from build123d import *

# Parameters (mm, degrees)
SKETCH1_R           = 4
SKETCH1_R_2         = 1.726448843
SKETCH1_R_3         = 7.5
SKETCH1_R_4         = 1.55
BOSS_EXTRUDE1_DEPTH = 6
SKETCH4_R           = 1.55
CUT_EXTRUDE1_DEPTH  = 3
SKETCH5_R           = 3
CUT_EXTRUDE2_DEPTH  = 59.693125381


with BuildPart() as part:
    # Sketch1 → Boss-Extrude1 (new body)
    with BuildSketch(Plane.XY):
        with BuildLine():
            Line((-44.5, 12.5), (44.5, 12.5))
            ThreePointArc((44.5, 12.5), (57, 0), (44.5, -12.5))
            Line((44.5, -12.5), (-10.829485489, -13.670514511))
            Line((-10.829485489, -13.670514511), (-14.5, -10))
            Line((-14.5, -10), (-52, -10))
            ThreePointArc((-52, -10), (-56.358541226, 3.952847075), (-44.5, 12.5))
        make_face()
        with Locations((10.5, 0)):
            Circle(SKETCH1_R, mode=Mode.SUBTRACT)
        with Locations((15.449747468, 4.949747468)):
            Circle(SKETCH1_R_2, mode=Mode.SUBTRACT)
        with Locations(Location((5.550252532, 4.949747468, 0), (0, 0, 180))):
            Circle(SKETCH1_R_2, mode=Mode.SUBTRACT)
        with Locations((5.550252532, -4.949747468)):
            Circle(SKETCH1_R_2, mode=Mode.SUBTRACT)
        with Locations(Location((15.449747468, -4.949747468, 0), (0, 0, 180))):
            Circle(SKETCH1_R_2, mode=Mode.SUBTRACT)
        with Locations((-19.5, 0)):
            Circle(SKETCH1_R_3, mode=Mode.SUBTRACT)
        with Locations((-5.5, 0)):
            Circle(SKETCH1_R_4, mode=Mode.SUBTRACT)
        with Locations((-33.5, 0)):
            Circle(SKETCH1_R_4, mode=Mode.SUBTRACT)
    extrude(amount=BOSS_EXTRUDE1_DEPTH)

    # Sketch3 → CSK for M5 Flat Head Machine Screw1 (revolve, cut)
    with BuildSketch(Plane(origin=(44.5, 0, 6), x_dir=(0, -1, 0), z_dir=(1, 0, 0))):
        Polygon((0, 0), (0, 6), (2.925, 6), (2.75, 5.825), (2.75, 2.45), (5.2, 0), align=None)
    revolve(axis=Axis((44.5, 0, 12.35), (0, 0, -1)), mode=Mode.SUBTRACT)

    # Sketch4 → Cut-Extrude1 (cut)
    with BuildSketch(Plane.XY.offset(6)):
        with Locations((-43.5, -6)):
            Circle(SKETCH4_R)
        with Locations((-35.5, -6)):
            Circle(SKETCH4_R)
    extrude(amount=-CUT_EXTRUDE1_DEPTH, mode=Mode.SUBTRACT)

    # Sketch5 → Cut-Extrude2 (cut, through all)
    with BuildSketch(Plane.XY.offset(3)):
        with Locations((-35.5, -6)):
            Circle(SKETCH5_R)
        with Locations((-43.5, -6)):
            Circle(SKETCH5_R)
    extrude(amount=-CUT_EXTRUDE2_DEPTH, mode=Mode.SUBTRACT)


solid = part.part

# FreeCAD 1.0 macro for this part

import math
import FreeCAD as App
import Part
import Sketcher
Q = App.Units.Quantity

doc = App.newDocument("Part")
body = doc.addObject("PartDesign::Body", "Body")

# Sketch on XY plane
sketch1 = body.newObject("Sketcher::SketchObject", "Sketch")
sketch1.AttachmentSupport = (doc.getObject("XY_Plane"), [""])
sketch1.MapMode = "FlatFace"
sketch1.addGeometry([
    Part.LineSegment(App.Vector(44.5, 12.5, 0), App.Vector(-44.5, 12.5, 0)),  # 0
    Part.ArcOfCircle(Part.Circle(App.Vector(-44.5, 0, 0), App.Vector(0, 0, 1), 12.5), math.radians(90), math.radians(233)),  # 1
    Part.LineSegment(App.Vector(-52, -10, 0), App.Vector(-14.5, -10, 0)),  # 2
    Part.LineSegment(App.Vector(-14.5, -10, 0), App.Vector(-10.8, -13.7, 0)),  # 3
    Part.LineSegment(App.Vector(-10.8, -13.7, 0), App.Vector(44.5, -12.5, 0)),  # 4
    Part.ArcOfCircle(Part.Circle(App.Vector(44.5, 0, 0), App.Vector(0, 0, 1), 12.5), math.radians(-90), math.radians(90)),  # 5
    Part.Circle(App.Vector(15.4, -4.9, 0), App.Vector(0, 0, 1), 1.7),  # 6
    Part.Circle(App.Vector(5.6, -4.9, 0), App.Vector(0, 0, 1), 1.7),  # 7
    Part.Circle(App.Vector(10.5, 0, 0), App.Vector(0, 0, 1), 4),  # 8
    Part.Circle(App.Vector(-5.5, 0, 0), App.Vector(0, 0, 1), 1.6),  # 9
    Part.Circle(App.Vector(15.4, 4.9, 0), App.Vector(0, 0, 1), 1.7),  # 10
    Part.Circle(App.Vector(5.6, 4.9, 0), App.Vector(0, 0, 1), 1.7),  # 11
    Part.Circle(App.Vector(-19.5, 0, 0), App.Vector(0, 0, 1), 7.5),  # 12
    Part.Circle(App.Vector(-33.5, 0, 0), App.Vector(0, 0, 1), 1.6),  # 13
], False)
sketch1.addConstraint([
    Sketcher.Constraint("Tangent", 0, 2, 1, 1),
    Sketcher.Constraint("Coincident", 1, 2, 2, 1),
    Sketcher.Constraint("Coincident", 2, 2, 3, 1),
    Sketcher.Constraint("Coincident", 3, 2, 4, 1),
    Sketcher.Constraint("Coincident", 4, 2, 5, 1),
    Sketcher.Constraint("Tangent", 5, 2, 0, 1),
    Sketcher.Constraint("Horizontal", 0),
    Sketcher.Constraint("Horizontal", 2),
    Sketcher.Constraint("Equal", 1, 5),
    Sketcher.Constraint("Equal", 6, 7),
    Sketcher.Constraint("Equal", 7, 10),
    Sketcher.Constraint("Equal", 10, 11),
    Sketcher.Constraint("Equal", 9, 13),
    Sketcher.Constraint("Symmetric", 1, 3, 5, 3, -1, 1),
    Sketcher.Constraint("Symmetric", 6, 3, 10, 3, -1),
    Sketcher.Constraint("Symmetric", 7, 3, 11, 3, -1),
    Sketcher.Constraint("PointOnObject", 8, 3, -1),
    Sketcher.Constraint("PointOnObject", 9, 3, -1),
    Sketcher.Constraint("PointOnObject", 12, 3, -1),
    Sketcher.Constraint("PointOnObject", 13, 3, -1),
    Sketcher.Constraint("Horizontal", 6, 3, 7, 3),
    Sketcher.Constraint("Vertical", 5, 3, 4, 2),
    Sketcher.Constraint("Diameter", 8, Q("8 mm")),
    Sketcher.Constraint("Diameter", 12, Q("15 mm")),
    Sketcher.Constraint("Diameter", 9, Q("3.1 mm")),
    Sketcher.Constraint("Radius", 1, Q("12.5 mm")),
    Sketcher.Constraint("DistanceX", 0, 2, 0, 1, Q("89 mm")),
    Sketcher.Constraint("Angle", 3, Q("-45 deg")),
    Sketcher.Constraint("DistanceX", 2, 1, 2, 2, Q("37.5 mm")),
    Sketcher.Constraint("DistanceX", 1, 2, -1, 1, Q("52 mm")),
    Sketcher.Constraint("DistanceX", 8, 3, 5, 3, Q("34 mm")),
    Sketcher.Constraint("DistanceX", 9, 3, 8, 3, Q("16 mm")),
    Sketcher.Constraint("DistanceX", 12, 3, 9, 3, Q("14 mm")),
    Sketcher.Constraint("DistanceX", 1, 3, 13, 3, Q("11 mm")),
    Sketcher.Constraint("Diameter", 6, Q("3.452898 mm")),
    Sketcher.Constraint("Distance", 3, Q("5.190891 mm")),
    Sketcher.Constraint("DistanceX", 3, 2, 7, 3, Q("16.379738 mm")),
    Sketcher.Constraint("DistanceY", 3, 2, 11, 3, Q("18.620262 mm")),
    Sketcher.Constraint("DistanceX", -1, 1, 6, 3, Q("15.449747 mm")),
])
pad1 = body.newObject("PartDesign::Pad", "Pad")
pad1.Profile = sketch1
pad1.Length = 6

# Sketch on YZ plane
sketch2 = body.newObject("Sketcher::SketchObject", "Sketch001")
sketch2.AttachmentSupport = (doc.getObject("YZ_Plane"), [""])
sketch2.MapMode = "FlatFace"
sketch2.AttachmentOffset = App.Placement(App.Vector(0, 0, 44.5), App.Rotation())
sketch2.addGeometry([
    Part.LineSegment(App.Vector(0, 0, 0), App.Vector(0, 6, 0)),  # 0
    Part.LineSegment(App.Vector(0, 6, 0), App.Vector(-5.2, 6, 0)),  # 1
    Part.LineSegment(App.Vector(-5.2, 6, 0), App.Vector(-2.75, 3.55, 0)),  # 2
    Part.LineSegment(App.Vector(-2.75, 3.55, 0), App.Vector(-2.75, 0.17, 0)),  # 3
    Part.LineSegment(App.Vector(-2.75, 0.17, 0), App.Vector(-2.92, 0, 0)),  # 4
    Part.LineSegment(App.Vector(-2.92, 0, 0), App.Vector(0, 0, 0)),  # 5
], False)
sketch2.addConstraint([
    Sketcher.Constraint("Coincident", 0, 2, 1, 1),
    Sketcher.Constraint("Coincident", 1, 2, 2, 1),
    Sketcher.Constraint("Coincident", 2, 2, 3, 1),
    Sketcher.Constraint("Coincident", 3, 2, 4, 1),
    Sketcher.Constraint("Coincident", 4, 2, 5, 1),
    Sketcher.Constraint("Coincident", 5, 2, 0, 1),
    Sketcher.Constraint("Vertical", 0),
    Sketcher.Constraint("Horizontal", 1),
    Sketcher.Constraint("Vertical", 3),
    Sketcher.Constraint("Horizontal", 5),
    Sketcher.Constraint("Coincident", 5, 2, -1, 1),
    Sketcher.Constraint("Perpendicular", 2, 4),
    Sketcher.Constraint("DistanceY", 0, 1, 0, 2, Q("6 mm")),
    Sketcher.Constraint("Angle", 2, Q("-45 deg")),
    Sketcher.Constraint("DistanceX", 1, 2, 1, 1, Q("5.2 mm")),
    Sketcher.Constraint("DistanceX", 5, 1, 5, 2, Q("2.925 mm")),
    Sketcher.Constraint("DistanceY", 3, 2, 3, 1, Q("3.375 mm")),
])
groove = body.newObject("PartDesign::Groove", "Groove")
groove.Profile = sketch2
groove.ReferenceAxis = (sketch2, ["V_Axis"])
groove.Angle = 360

# Sketch on XY plane
sketch3 = body.newObject("Sketcher::SketchObject", "Sketch002")
sketch3.AttachmentSupport = (doc.getObject("XY_Plane"), [""])
sketch3.MapMode = "FlatFace"
sketch3.AttachmentOffset = App.Placement(App.Vector(0, 0, 6), App.Rotation())
sketch3.addGeometry([
    Part.Circle(App.Vector(-43.5, -6, 0), App.Vector(0, 0, 1), 1.6),
    Part.Circle(App.Vector(-35.5, -6, 0), App.Vector(0, 0, 1), 1.6),
], False)
sketch3.addConstraint([
    Sketcher.Constraint("Equal", 0, 1),
    Sketcher.Constraint("Horizontal", 0, 3, 1, 3),
    Sketcher.Constraint("Diameter", 0, Q("3.1 mm")),
    Sketcher.Constraint("DistanceY", 0, 3, -1, 1, Q("6 mm")),
    Sketcher.Constraint("DistanceX", 0, 3, 1, 3, Q("8 mm")),
    Sketcher.Constraint("DistanceX", 0, 3, -1, 1, Q("43.5 mm")),
])
pocket1 = body.newObject("PartDesign::Pocket", "Pocket")
pocket1.Profile = sketch3
pocket1.Length = 3

# Sketch on XY plane
sketch4 = body.newObject("Sketcher::SketchObject", "Sketch003")
sketch4.AttachmentSupport = (doc.getObject("XY_Plane"), [""])
sketch4.MapMode = "FlatFace"
sketch4.AttachmentOffset = App.Placement(App.Vector(0, 0, 3), App.Rotation())
sketch4.addGeometry([
    Part.Circle(App.Vector(-35.5, -6, 0), App.Vector(0, 0, 1), 3),
    Part.Circle(App.Vector(-43.5, -6, 0), App.Vector(0, 0, 1), 3),
], False)
sketch4.addConstraint([
    Sketcher.Constraint("Equal", 0, 1),
    Sketcher.Constraint("Horizontal", 0, 3, 1, 3),
    Sketcher.Constraint("Diameter", 0, Q("6 mm")),
    Sketcher.Constraint("DistanceY", 0, 3, -1, 1, Q("6 mm")),
    Sketcher.Constraint("DistanceX", 1, 3, 0, 3, Q("8 mm")),
    Sketcher.Constraint("DistanceX", 0, 3, -1, 1, Q("35.5 mm")),
])
pocket2 = body.newObject("PartDesign::Pocket", "Pocket001")
pocket2.Profile = sketch4
pocket2.Type = "ThroughAll"

doc.recompute()
